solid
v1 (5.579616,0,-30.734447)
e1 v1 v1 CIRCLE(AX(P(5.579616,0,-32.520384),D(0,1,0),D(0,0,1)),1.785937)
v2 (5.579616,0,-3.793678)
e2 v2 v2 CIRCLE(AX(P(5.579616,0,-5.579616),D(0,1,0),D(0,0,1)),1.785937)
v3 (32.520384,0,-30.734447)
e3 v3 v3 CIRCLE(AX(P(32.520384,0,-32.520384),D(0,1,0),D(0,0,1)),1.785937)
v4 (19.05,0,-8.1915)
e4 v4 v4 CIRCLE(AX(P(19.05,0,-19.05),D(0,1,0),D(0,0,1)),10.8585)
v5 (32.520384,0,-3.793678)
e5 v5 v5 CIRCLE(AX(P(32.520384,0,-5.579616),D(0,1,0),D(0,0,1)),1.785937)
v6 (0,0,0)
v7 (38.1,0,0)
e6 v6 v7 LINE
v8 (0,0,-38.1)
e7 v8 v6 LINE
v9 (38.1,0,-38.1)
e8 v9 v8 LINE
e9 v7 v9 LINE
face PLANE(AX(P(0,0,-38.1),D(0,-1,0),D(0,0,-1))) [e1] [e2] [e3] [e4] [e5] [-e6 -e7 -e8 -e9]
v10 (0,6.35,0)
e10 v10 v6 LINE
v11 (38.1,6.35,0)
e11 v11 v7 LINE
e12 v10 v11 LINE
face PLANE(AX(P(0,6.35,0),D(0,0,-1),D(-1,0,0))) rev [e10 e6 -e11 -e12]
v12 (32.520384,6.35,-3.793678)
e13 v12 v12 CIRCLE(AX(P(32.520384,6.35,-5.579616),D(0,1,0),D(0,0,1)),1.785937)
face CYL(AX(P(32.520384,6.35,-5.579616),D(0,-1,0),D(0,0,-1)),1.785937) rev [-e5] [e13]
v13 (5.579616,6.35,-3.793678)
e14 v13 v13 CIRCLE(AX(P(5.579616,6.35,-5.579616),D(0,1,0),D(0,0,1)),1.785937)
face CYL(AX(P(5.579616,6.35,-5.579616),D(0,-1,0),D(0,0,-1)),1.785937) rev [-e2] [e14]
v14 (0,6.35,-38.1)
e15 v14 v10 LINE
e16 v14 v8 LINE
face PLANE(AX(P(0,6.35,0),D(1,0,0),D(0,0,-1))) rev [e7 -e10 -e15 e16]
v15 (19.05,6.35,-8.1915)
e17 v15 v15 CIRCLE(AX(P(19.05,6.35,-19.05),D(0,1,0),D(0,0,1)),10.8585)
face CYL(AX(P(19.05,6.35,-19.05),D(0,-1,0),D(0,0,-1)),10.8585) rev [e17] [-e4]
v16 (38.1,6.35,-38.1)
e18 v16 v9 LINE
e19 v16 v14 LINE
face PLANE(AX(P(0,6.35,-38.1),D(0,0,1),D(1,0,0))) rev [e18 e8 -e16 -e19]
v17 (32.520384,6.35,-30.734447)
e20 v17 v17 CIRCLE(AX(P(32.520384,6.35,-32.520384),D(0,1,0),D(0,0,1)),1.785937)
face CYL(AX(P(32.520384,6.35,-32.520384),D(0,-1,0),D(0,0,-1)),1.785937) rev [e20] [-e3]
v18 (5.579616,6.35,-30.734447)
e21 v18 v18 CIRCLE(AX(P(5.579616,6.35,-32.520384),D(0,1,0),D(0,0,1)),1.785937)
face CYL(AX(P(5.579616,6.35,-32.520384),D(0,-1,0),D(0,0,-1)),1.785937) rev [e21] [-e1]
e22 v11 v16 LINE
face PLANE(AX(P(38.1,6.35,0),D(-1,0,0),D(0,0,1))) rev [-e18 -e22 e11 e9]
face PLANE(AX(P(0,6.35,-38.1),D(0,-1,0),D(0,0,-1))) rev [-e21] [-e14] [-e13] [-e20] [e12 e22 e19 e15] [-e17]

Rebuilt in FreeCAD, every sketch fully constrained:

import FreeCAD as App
import Part
import Sketcher
from FreeCAD import Vector
Q = App.Units.Quantity


def add_polygon(sketch, points):
    """Adds a closed chain of lines whose ends are joined by coincident constraints."""
    first, n = sketch.GeometryCount, len(points)
    for a, b in zip(points, points[1:] + points[:1]):
        sketch.addGeometry(Part.LineSegment(App.Vector(*a, 0), App.Vector(*b, 0)), False)
    for i in range(n):
        sketch.addConstraint(Sketcher.Constraint("Coincident", first + i, 2, first + (i + 1) % n, 1))

doc = App.newDocument("Part")
params = doc.addObject("Spreadsheet::Sheet", "Params")
for row, (alias, value) in enumerate([
    ("sketch1_diameter", "0.140625 in"),
    ("sketch1_diameter2", "0.855 in"),
    ("sketch1_width", "1.5 in"),
    ("pad1_length", "0.25 in"),
], start=1):
    params.set(f"A{row}", alias)
    params.set(f"B{row}", "=" + value)
    params.setAlias(f"B{row}", alias)

body = doc.addObject("PartDesign::Body", "Body")

sketch1 = body.newObject("Sketcher::SketchObject", "Sketch")
sketch1.AttachmentSupport = (doc.getObject("XZ_Plane"), [""])
sketch1.MapMode = "FlatFace"
add_polygon(sketch1, [(0, -38.1), (0, 0), (38.1, 0), (38.1, -38.1)])
sketch1.addGeometry(Part.Circle(Vector(5.579616, -5.579616, 0), Vector(0, 0, 1), 1.785937), False)
sketch1.addGeometry(Part.Circle(Vector(32.520384, -5.579616, 0), Vector(0, 0, 1), 1.785937), False)
sketch1.addGeometry(Part.Circle(Vector(5.579616, -32.520384, 0), Vector(0, 0, 1), 1.785937), False)
sketch1.addGeometry(Part.Circle(Vector(19.05, -19.05, 0), Vector(0, 0, 1), 10.8585), False)
sketch1.addGeometry(Part.Circle(Vector(32.520384, -32.520384, 0), Vector(0, 0, 1), 1.785937), False)
sketch1.addConstraint(Sketcher.Constraint("Vertical", 0))
sketch1.addConstraint(Sketcher.Constraint("Horizontal", 1))
sketch1.addConstraint(Sketcher.Constraint("Vertical", 2))
sketch1.addConstraint(Sketcher.Constraint("Horizontal", 3))
sketch1.addConstraint(Sketcher.Constraint("Coincident", 0, 2, -1, 1))
sketch1.addConstraint(Sketcher.Constraint("Equal", 4, 5))
sketch1.addConstraint(Sketcher.Constraint("Equal", 5, 6))
sketch1.addConstraint(Sketcher.Constraint("Equal", 6, 8))
sketch1.addConstraint(Sketcher.Constraint("Horizontal", 4, 3, 5, 3))
sketch1.addConstraint(Sketcher.Constraint("Horizontal", 6, 3, 8, 3))
sketch1.addConstraint(Sketcher.Constraint("Vertical", 4, 3, 6, 3))
sketch1.addConstraint(Sketcher.Constraint("Vertical", 5, 3, 8, 3))
sketch1.addConstraint(Sketcher.Constraint("Equal", 3, 0))
sketch1.addConstraint(Sketcher.Constraint("Diameter", 4, Q("0.140625 in")))
sketch1.addConstraint(Sketcher.Constraint("Diameter", 7, Q("0.855 in")))
sketch1.addConstraint(Sketcher.Constraint("DistanceX", 1, 1, 1, 2, Q("1.5 in")))
sketch1.addConstraint(Sketcher.Constraint("DistanceX", -1, 1, 7, 3, Q("0.75 in")))
sketch1.addConstraint(Sketcher.Constraint("DistanceY", 7, 3, -1, 1, Q("0.75 in")))
sketch1.addConstraint(Sketcher.Constraint("DistanceX", 4, 3, 5, 3, 26.940768))
sketch1.addConstraint(Sketcher.Constraint("DistanceY", 6, 3, 4, 3, 26.940768))
sketch1.addConstraint(Sketcher.Constraint("DistanceX", -1, 1, 4, 3, 5.579616))
sketch1.addConstraint(Sketcher.Constraint("DistanceY", 4, 3, -1, 1, 5.579616))
sketch1.setExpression("Constraints[17]", "Params.sketch1_diameter")
sketch1.setExpression("Constraints[18]", "Params.sketch1_diameter2")
sketch1.setExpression("Constraints[19]", "Params.sketch1_width")
pad1 = body.newObject("PartDesign::Pad", "Pad")
pad1.Profile = sketch1
pad1.setExpression("Length", "Params.pad1_length")
pad1.Reversed = True

doc.recompute()
